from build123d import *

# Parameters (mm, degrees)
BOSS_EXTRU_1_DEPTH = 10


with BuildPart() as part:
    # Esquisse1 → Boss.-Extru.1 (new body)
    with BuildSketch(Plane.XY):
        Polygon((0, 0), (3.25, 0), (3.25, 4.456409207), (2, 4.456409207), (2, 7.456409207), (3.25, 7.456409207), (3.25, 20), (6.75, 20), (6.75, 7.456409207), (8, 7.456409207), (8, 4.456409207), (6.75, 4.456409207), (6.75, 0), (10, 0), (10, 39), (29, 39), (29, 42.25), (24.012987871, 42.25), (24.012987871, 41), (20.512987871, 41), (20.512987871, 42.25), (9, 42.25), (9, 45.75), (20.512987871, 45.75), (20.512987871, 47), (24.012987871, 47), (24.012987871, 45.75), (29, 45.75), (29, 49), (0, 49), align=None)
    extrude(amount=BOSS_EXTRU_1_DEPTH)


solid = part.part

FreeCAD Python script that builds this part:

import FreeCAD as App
import Part
import Sketcher
Q = App.Units.Quantity

doc = App.newDocument("Part")
body = doc.addObject("PartDesign::Body", "Body")

# Sketch on XY plane
sketch1 = body.newObject("Sketcher::SketchObject", "Sketch")
sketch1.AttachmentSupport = (doc.getObject("XY_Plane"), [""])
sketch1.MapMode = "FlatFace"
sketch1.addGeometry(Part.LineSegment(App.Vector(0, 0, 0), App.Vector(3.25, 0, 0)), False)
sketch1.addGeometry(Part.LineSegment(App.Vector(3.25, 0, 0), App.Vector(3.25, 4.456409, 0)), False)
sketch1.addGeometry(Part.LineSegment(App.Vector(3.25, 4.456409, 0), App.Vector(2, 4.456409, 0)), False)
sketch1.addGeometry(Part.LineSegment(App.Vector(2, 4.456409, 0), App.Vector(2, 7.456409, 0)), False)
sketch1.addGeometry(Part.LineSegment(App.Vector(2, 7.456409, 0), App.Vector(3.25, 7.456409, 0)), False)
sketch1.addGeometry(Part.LineSegment(App.Vector(3.25, 7.456409, 0), App.Vector(3.25, 20, 0)), False)
sketch1.addGeometry(Part.LineSegment(App.Vector(3.25, 20, 0), App.Vector(6.75, 20, 0)), False)
sketch1.addGeometry(Part.LineSegment(App.Vector(6.75, 20, 0), App.Vector(6.75, 7.456409, 0)), False)
sketch1.addGeometry(Part.LineSegment(App.Vector(6.75, 7.456409, 0), App.Vector(8, 7.456409, 0)), False)
sketch1.addGeometry(Part.LineSegment(App.Vector(8, 7.456409, 0), App.Vector(8, 4.456409, 0)), False)
sketch1.addGeometry(Part.LineSegment(App.Vector(8, 4.456409, 0), App.Vector(6.75, 4.456409, 0)), False)
sketch1.addGeometry(Part.LineSegment(App.Vector(6.75, 4.456409, 0), App.Vector(6.75, 0, 0)), False)
sketch1.addGeometry(Part.LineSegment(App.Vector(6.75, 0, 0), App.Vector(10, 0, 0)), False)
sketch1.addGeometry(Part.LineSegment(App.Vector(10, 0, 0), App.Vector(10, 39, 0)), False)
sketch1.addGeometry(Part.LineSegment(App.Vector(10, 39, 0), App.Vector(29, 39, 0)), False)
sketch1.addGeometry(Part.LineSegment(App.Vector(29, 39, 0), App.Vector(29, 42.25, 0)), False)
sketch1.addGeometry(Part.LineSegment(App.Vector(29, 42.25, 0), App.Vector(24.012988, 42.25, 0)), False)
sketch1.addGeometry(Part.LineSegment(App.Vector(24.012988, 42.25, 0), App.Vector(24.012988, 41, 0)), False)
sketch1.addGeometry(Part.LineSegment(App.Vector(24.012988, 41, 0), App.Vector(20.512988, 41, 0)), False)
sketch1.addGeometry(Part.LineSegment(App.Vector(20.512988, 41, 0), App.Vector(20.512988, 42.25, 0)), False)
sketch1.addGeometry(Part.LineSegment(App.Vector(20.512988, 42.25, 0), App.Vector(9, 42.25, 0)), False)
sketch1.addGeometry(Part.LineSegment(App.Vector(9, 42.25, 0), App.Vector(9, 45.75, 0)), False)
sketch1.addGeometry(Part.LineSegment(App.Vector(9, 45.75, 0), App.Vector(20.512988, 45.75, 0)), False)
sketch1.addGeometry(Part.LineSegment(App.Vector(20.512988, 45.75, 0), App.Vector(20.512988, 47, 0)), False)
sketch1.addGeometry(Part.LineSegment(App.Vector(20.512988, 47, 0), App.Vector(24.012988, 47, 0)), False)
sketch1.addGeometry(Part.LineSegment(App.Vector(24.012988, 47, 0), App.Vector(24.012988, 45.75, 0)), False)
sketch1.addGeometry(Part.LineSegment(App.Vector(24.012988, 45.75, 0), App.Vector(29, 45.75, 0)), False)
sketch1.addGeometry(Part.LineSegment(App.Vector(29, 45.75, 0), App.Vector(29, 49, 0)), False)
sketch1.addGeometry(Part.LineSegment(App.Vector(29, 49, 0), App.Vector(0, 49, 0)), False)
sketch1.addGeometry(Part.LineSegment(App.Vector(0, 49, 0), App.Vector(0, 0, 0)), False)
sketch1.addConstraint(Sketcher.Constraint("Coincident", 0, 2, 1, 1))
sketch1.addConstraint(Sketcher.Constraint("Coincident", 1, 2, 2, 1))
sketch1.addConstraint(Sketcher.Constraint("Coincident", 2, 2, 3, 1))
sketch1.addConstraint(Sketcher.Constraint("Coincident", 3, 2, 4, 1))
sketch1.addConstraint(Sketcher.Constraint("Coincident", 4, 2, 5, 1))
sketch1.addConstraint(Sketcher.Constraint("Coincident", 5, 2, 6, 1))
sketch1.addConstraint(Sketcher.Constraint("Coincident", 6, 2, 7, 1))
sketch1.addConstraint(Sketcher.Constraint("Coincident", 7, 2, 8, 1))
sketch1.addConstraint(Sketcher.Constraint("Coincident", 8, 2, 9, 1))
sketch1.addConstraint(Sketcher.Constraint("Coincident", 9, 2, 10, 1))
sketch1.addConstraint(Sketcher.Constraint("Coincident", 10, 2, 11, 1))
sketch1.addConstraint(Sketcher.Constraint("Coincident", 11, 2, 12, 1))
sketch1.addConstraint(Sketcher.Constraint("Coincident", 12, 2, 13, 1))
sketch1.addConstraint(Sketcher.Constraint("Coincident", 13, 2, 14, 1))
sketch1.addConstraint(Sketcher.Constraint("Coincident", 14, 2, 15, 1))
sketch1.addConstraint(Sketcher.Constraint("Coincident", 15, 2, 16, 1))
sketch1.addConstraint(Sketcher.Constraint("Coincident", 16, 2, 17, 1))
sketch1.addConstraint(Sketcher.Constraint("Coincident", 17, 2, 18, 1))
sketch1.addConstraint(Sketcher.Constraint("Coincident", 18, 2, 19, 1))
sketch1.addConstraint(Sketcher.Constraint("Coincident", 19, 2, 20, 1))
sketch1.addConstraint(Sketcher.Constraint("Coincident", 20, 2, 21, 1))
sketch1.addConstraint(Sketcher.Constraint("Coincident", 21, 2, 22, 1))
sketch1.addConstraint(Sketcher.Constraint("Coincident", 22, 2, 23, 1))
sketch1.addConstraint(Sketcher.Constraint("Coincident", 23, 2, 24, 1))
sketch1.addConstraint(Sketcher.Constraint("Coincident", 24, 2, 25, 1))
sketch1.addConstraint(Sketcher.Constraint("Coincident", 25, 2, 26, 1))
sketch1.addConstraint(Sketcher.Constraint("Coincident", 26, 2, 27, 1))
sketch1.addConstraint(Sketcher.Constraint("Coincident", 27, 2, 28, 1))
sketch1.addConstraint(Sketcher.Constraint("Coincident", 28, 2, 29, 1))
sketch1.addConstraint(Sketcher.Constraint("Coincident", 29, 2, 0, 1))
sketch1.addConstraint(Sketcher.Constraint("Horizontal", 0))
sketch1.addConstraint(Sketcher.Constraint("Vertical", 1))
sketch1.addConstraint(Sketcher.Constraint("Horizontal", 2))
sketch1.addConstraint(Sketcher.Constraint("Vertical", 3))
sketch1.addConstraint(Sketcher.Constraint("Horizontal", 4))
sketch1.addConstraint(Sketcher.Constraint("Vertical", 5))
sketch1.addConstraint(Sketcher.Constraint("Horizontal", 6))
sketch1.addConstraint(Sketcher.Constraint("Vertical", 7))
sketch1.addConstraint(Sketcher.Constraint("Horizontal", 8))
sketch1.addConstraint(Sketcher.Constraint("Vertical", 9))
sketch1.addConstraint(Sketcher.Constraint("Horizontal", 10))
sketch1.addConstraint(Sketcher.Constraint("Vertical", 11))
sketch1.addConstraint(Sketcher.Constraint("Horizontal", 12))
sketch1.addConstraint(Sketcher.Constraint("Vertical", 13))
sketch1.addConstraint(Sketcher.Constraint("Horizontal", 14))
sketch1.addConstraint(Sketcher.Constraint("Vertical", 15))
sketch1.addConstraint(Sketcher.Constraint("Horizontal", 16))
sketch1.addConstraint(Sketcher.Constraint("Vertical", 17))
sketch1.addConstraint(Sketcher.Constraint("Horizontal", 18))
sketch1.addConstraint(Sketcher.Constraint("Vertical", 19))
sketch1.addConstraint(Sketcher.Constraint("Horizontal", 20))
sketch1.addConstraint(Sketcher.Constraint("Vertical", 21))
sketch1.addConstraint(Sketcher.Constraint("Horizontal", 22))
sketch1.addConstraint(Sketcher.Constraint("Vertical", 23))
sketch1.addConstraint(Sketcher.Constraint("Horizontal", 24))
sketch1.addConstraint(Sketcher.Constraint("Vertical", 25))
sketch1.addConstraint(Sketcher.Constraint("Horizontal", 26))
sketch1.addConstraint(Sketcher.Constraint("Vertical", 27))
sketch1.addConstraint(Sketcher.Constraint("Horizontal", 28))
sketch1.addConstraint(Sketcher.Constraint("Vertical", 29))
sketch1.addConstraint(Sketcher.Constraint("Coincident", 29, 2, -1, 1))
sketch1.addConstraint(Sketcher.Constraint("PointOnObject", 11, 2, -1))
sketch1.addConstraint(Sketcher.Constraint("Horizontal", 4, 2, 7, 2))
sketch1.addConstraint(Sketcher.Constraint("Horizontal", 2, 2, 9, 2))
sketch1.addConstraint(Sketcher.Constraint("Horizontal", 16, 2, 19, 2))
sketch1.addConstraint(Sketcher.Constraint("Horizontal", 22, 2, 25, 2))
sketch1.addConstraint(Sketcher.Constraint("Vertical", 1, 2, 4, 2))
sketch1.addConstraint(Sketcher.Constraint("Vertical", 7, 2, 10, 2))
sketch1.addConstraint(Sketcher.Constraint("Vertical", 19, 2, 22, 2))
sketch1.addConstraint(Sketcher.Constraint("Vertical", 17, 2, 24, 2))
sketch1.addConstraint(Sketcher.Constraint("Vertical", 15, 2, 26, 2))
sketch1.addConstraint(Sketcher.Constraint("Equal", 4, 8))
sketch1.addConstraint(Sketcher.Constraint("Equal", 0, 12))
sketch1.addConstraint(Sketcher.Constraint("Equal", 6, 18))
sketch1.addConstraint(Sketcher.Constraint("Equal", 12, 15))
sketch1.addConstraint(Sketcher.Constraint("Equal", 10, 17))
sketch1.addConstraint(Sketcher.Constraint("Equal", 24, 21))
sketch1.addConstraint(Sketcher.Constraint("Equal", 19, 23))
sketch1.addConstraint(Sketcher.Constraint("Equal", 15, 27))
sketch1.addConstraint(Sketcher.Constraint("DistanceX", 14, 1, 14, 2, Q("19 mm")))
sketch1.addConstraint(Sketcher.Constraint("DistanceX", 28, 2, 28, 1, Q("29 mm")))
sketch1.addConstraint(Sketcher.Constraint("DistanceY", 3, 1, 3, 2, Q("3 mm")))
sketch1.addConstraint(Sketcher.Constraint("DistanceY", 13, 1, 13, 2, Q("39 mm")))
sketch1.addConstraint(Sketcher.Constraint("DistanceX", 6, 1, 6, 2, Q("3.5 mm")))
sketch1.addConstraint(Sketcher.Constraint("DistanceX", -1, 1, 2, 2, Q("2 mm")))
sketch1.addConstraint(Sketcher.Constraint("DistanceY", -1, 1, 5, 2, Q("20 mm")))
sketch1.addConstraint(Sketcher.Constraint("DistanceX", -1, 1, 20, 2, Q("9 mm")))
sketch1.addConstraint(Sketcher.Constraint("DistanceY", 1, 1, 1, 2, Q("4.456409 mm")))
sketch1.addConstraint(Sketcher.Constraint("DistanceX", 16, 2, 16, 1, Q("4.987012 mm")))
pad1 = body.newObject("PartDesign::Pad", "Pad")
pad1.Profile = sketch1
pad1.Length = 10

doc.recompute()
